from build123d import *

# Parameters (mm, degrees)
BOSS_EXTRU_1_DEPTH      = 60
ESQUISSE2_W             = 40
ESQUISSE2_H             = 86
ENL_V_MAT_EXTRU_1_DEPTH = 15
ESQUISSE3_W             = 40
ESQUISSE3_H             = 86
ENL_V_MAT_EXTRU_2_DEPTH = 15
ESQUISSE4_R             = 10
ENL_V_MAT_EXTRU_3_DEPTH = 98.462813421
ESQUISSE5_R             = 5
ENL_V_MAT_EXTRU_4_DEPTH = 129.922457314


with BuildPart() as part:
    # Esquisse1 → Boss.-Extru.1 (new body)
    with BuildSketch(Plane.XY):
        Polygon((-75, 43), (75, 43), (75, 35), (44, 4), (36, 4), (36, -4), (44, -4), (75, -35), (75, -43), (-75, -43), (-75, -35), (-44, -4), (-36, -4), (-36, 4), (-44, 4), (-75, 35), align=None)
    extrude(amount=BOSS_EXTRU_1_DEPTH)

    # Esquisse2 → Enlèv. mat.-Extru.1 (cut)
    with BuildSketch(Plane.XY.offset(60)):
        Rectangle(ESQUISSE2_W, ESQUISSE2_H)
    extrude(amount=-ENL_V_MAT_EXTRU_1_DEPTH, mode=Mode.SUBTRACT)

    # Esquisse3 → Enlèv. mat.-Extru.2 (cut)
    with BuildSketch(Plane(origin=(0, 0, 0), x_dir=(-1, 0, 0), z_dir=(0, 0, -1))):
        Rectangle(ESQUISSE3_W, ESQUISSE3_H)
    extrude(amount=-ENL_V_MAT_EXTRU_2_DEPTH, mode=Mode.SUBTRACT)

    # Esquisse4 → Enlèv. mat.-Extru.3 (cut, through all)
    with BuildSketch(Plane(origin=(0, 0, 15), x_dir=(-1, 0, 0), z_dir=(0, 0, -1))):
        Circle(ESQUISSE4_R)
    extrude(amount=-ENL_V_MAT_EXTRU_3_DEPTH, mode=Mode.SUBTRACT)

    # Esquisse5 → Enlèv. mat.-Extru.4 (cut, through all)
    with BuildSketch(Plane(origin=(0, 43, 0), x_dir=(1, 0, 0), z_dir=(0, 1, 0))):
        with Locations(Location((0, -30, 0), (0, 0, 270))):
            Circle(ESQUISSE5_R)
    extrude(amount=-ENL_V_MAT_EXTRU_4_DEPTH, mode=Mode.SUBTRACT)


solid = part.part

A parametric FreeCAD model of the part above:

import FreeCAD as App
import Part
import Sketcher
Q = App.Units.Quantity


def add_polygon(sketch, points):
    """Adds a closed chain of lines whose ends are joined by coincident constraints."""
    first, n = sketch.GeometryCount, len(points)
    for a, b in zip(points, points[1:] + points[:1]):
        sketch.addGeometry(Part.LineSegment(App.Vector(*a, 0), App.Vector(*b, 0)), False)
    for i in range(n):
        sketch.addConstraint(Sketcher.Constraint("Coincident", first + i, 2, first + (i + 1) % n, 1))

doc = App.newDocument("Part")
body = doc.addObject("PartDesign::Body", "Body")

# Sketch on XY plane
sketch1 = body.newObject("Sketcher::SketchObject", "Sketch")
sketch1.AttachmentSupport = (doc.getObject("XY_Plane"), [""])
sketch1.MapMode = "FlatFace"
add_polygon(sketch1, [(75, 43), (-75, 43), (-75, 35), (-44, 4), (-36, 4), (-36, -4), (-44, -4), (-75, -35), (-75, -43), (75, -43), (75, -35), (44, -4), (36, -4), (36, 4), (44, 4), (75, 35)])  # lines 0-15
sketch1.addConstraint(Sketcher.Constraint("Horizontal", 0))
sketch1.addConstraint(Sketcher.Constraint("Vertical", 1))
sketch1.addConstraint(Sketcher.Constraint("Horizontal", 3))
sketch1.addConstraint(Sketcher.Constraint("Vertical", 4))
sketch1.addConstraint(Sketcher.Constraint("Horizontal", 5))
sketch1.addConstraint(Sketcher.Constraint("Vertical", 7))
sketch1.addConstraint(Sketcher.Constraint("Horizontal", 8))
sketch1.addConstraint(Sketcher.Constraint("Vertical", 9))
sketch1.addConstraint(Sketcher.Constraint("Horizontal", 11))
sketch1.addConstraint(Sketcher.Constraint("Vertical", 12))
sketch1.addConstraint(Sketcher.Constraint("Horizontal", 13))
sketch1.addConstraint(Sketcher.Constraint("Vertical", 15))
sketch1.addConstraint(Sketcher.Constraint("Symmetric", 0, 2, 8, 2, -1, 1))
sketch1.addConstraint(Sketcher.Constraint("Symmetric", 2, 2, 10, 2, -1, 1))
sketch1.addConstraint(Sketcher.Constraint("Symmetric", 4, 2, 12, 2, -1, 1))
sketch1.addConstraint(Sketcher.Constraint("Symmetric", 6, 2, 14, 2, -1, 1))
sketch1.addConstraint(Sketcher.Constraint("Symmetric", 6, 2, 9, 2, -2))
sketch1.addConstraint(Sketcher.Constraint("Symmetric", 5, 2, 10, 2, -2))
sketch1.addConstraint(Sketcher.Constraint("Perpendicular", 2, 6))
sketch1.addConstraint(Sketcher.Constraint("Perpendicular", 6, 10))
sketch1.addConstraint(Sketcher.Constraint("Perpendicular", 10, 14))
sketch1.addConstraint(Sketcher.Constraint("Equal", 13, 1))
sketch1.addConstraint(Sketcher.Constraint("Equal", 1, 4))
sketch1.addConstraint(Sketcher.Constraint("DistanceX", 0, 2, 0, 1, Q("150 mm")))
sketch1.addConstraint(Sketcher.Constraint("DistanceX", 3, 1, 3, 2, Q("8 mm")))
sketch1.addConstraint(Sketcher.Constraint("DistanceY", -1, 1, 0, 2, Q("43 mm")))
pad1 = body.newObject("PartDesign::Pad", "Pad")
pad1.Profile = sketch1
pad1.Length = 60

# Sketch on XY plane
sketch2 = body.newObject("Sketcher::SketchObject", "Sketch001")
sketch2.AttachmentSupport = (doc.getObject("XY_Plane"), [""])
sketch2.MapMode = "FlatFace"
sketch2.AttachmentOffset = App.Placement(App.Vector(0, 0, 60), App.Rotation())
add_polygon(sketch2, [(-20, 43), (-20, -43), (20, -43), (20, 43)])  # lines 0-3
sketch2.addConstraint(Sketcher.Constraint("Vertical", 0))
sketch2.addConstraint(Sketcher.Constraint("Horizontal", 1))
sketch2.addConstraint(Sketcher.Constraint("Vertical", 2))
sketch2.addConstraint(Sketcher.Constraint("Horizontal", 3))
sketch2.addConstraint(Sketcher.Constraint("Symmetric", 0, 2, 2, 2, -1, 1))
sketch2.addConstraint(Sketcher.Constraint("DistanceX", 1, 1, 1, 2, Q("40 mm")))
sketch2.addConstraint(Sketcher.Constraint("DistanceY", 0, 2, 0, 1, Q("86 mm")))
pocket1 = body.newObject("PartDesign::Pocket", "Pocket")
pocket1.Profile = sketch2
pocket1.Length = 15

# Sketch on XY plane
sketch3 = body.newObject("Sketcher::SketchObject", "Sketch002")
sketch3.AttachmentSupport = (doc.getObject("XY_Plane"), [""])
sketch3.MapMode = "FlatFace"
add_polygon(sketch3, [(20, 43), (20, -43), (-20, -43), (-20, 43)])  # lines 0-3
sketch3.addConstraint(Sketcher.Constraint("Vertical", 0))
sketch3.addConstraint(Sketcher.Constraint("Horizontal", 1))
sketch3.addConstraint(Sketcher.Constraint("Vertical", 2))
sketch3.addConstraint(Sketcher.Constraint("Horizontal", 3))
sketch3.addConstraint(Sketcher.Constraint("Symmetric", 0, 2, 2, 2, -1, 1))
sketch3.addConstraint(Sketcher.Constraint("DistanceX", 1, 2, 1, 1, Q("40 mm")))
sketch3.addConstraint(Sketcher.Constraint("DistanceY", 0, 2, 0, 1, Q("86 mm")))
pocket2 = body.newObject("PartDesign::Pocket", "Pocket001")
pocket2.Profile = sketch3
pocket2.Length = 15
pocket2.Reversed = True

# Sketch on XY plane
sketch4 = body.newObject("Sketcher::SketchObject", "Sketch003")
sketch4.AttachmentSupport = (doc.getObject("XY_Plane"), [""])
sketch4.MapMode = "FlatFace"
sketch4.AttachmentOffset = App.Placement(App.Vector(0, 0, 15), App.Rotation())
sketch4.addGeometry(Part.Circle(App.Vector(0, 0, 0), App.Vector(0, 0, 1), 10), False)
sketch4.addConstraint(Sketcher.Constraint("Coincident", 0, 3, -1, 1))
sketch4.addConstraint(Sketcher.Constraint("Diameter", 0, Q("20 mm")))
pocket3 = body.newObject("PartDesign::Pocket", "Pocket002")
pocket3.Profile = sketch4
pocket3.Type = "ThroughAll"
pocket3.Reversed = True

# Sketch on XZ plane
sketch5 = body.newObject("Sketcher::SketchObject", "Sketch004")
sketch5.AttachmentSupport = (doc.getObject("XZ_Plane"), [""])
sketch5.MapMode = "FlatFace"
sketch5.AttachmentOffset = App.Placement(App.Vector(0, 0, -43), App.Rotation())
sketch5.addGeometry(Part.Circle(App.Vector(0, 30, 0), App.Vector(0, 0, 1), 5), False)
sketch5.addConstraint(Sketcher.Constraint("PointOnObject", 0, 3, -2))
sketch5.addConstraint(Sketcher.Constraint("Diameter", 0, Q("10 mm")))
sketch5.addConstraint(Sketcher.Constraint("DistanceY", -1, 1, 0, 3, Q("30 mm")))
pocket4 = body.newObject("PartDesign::Pocket", "Pocket003")
pocket4.Profile = sketch5
pocket4.Type = "ThroughAll"
pocket4.Reversed = True

doc.recompute()
